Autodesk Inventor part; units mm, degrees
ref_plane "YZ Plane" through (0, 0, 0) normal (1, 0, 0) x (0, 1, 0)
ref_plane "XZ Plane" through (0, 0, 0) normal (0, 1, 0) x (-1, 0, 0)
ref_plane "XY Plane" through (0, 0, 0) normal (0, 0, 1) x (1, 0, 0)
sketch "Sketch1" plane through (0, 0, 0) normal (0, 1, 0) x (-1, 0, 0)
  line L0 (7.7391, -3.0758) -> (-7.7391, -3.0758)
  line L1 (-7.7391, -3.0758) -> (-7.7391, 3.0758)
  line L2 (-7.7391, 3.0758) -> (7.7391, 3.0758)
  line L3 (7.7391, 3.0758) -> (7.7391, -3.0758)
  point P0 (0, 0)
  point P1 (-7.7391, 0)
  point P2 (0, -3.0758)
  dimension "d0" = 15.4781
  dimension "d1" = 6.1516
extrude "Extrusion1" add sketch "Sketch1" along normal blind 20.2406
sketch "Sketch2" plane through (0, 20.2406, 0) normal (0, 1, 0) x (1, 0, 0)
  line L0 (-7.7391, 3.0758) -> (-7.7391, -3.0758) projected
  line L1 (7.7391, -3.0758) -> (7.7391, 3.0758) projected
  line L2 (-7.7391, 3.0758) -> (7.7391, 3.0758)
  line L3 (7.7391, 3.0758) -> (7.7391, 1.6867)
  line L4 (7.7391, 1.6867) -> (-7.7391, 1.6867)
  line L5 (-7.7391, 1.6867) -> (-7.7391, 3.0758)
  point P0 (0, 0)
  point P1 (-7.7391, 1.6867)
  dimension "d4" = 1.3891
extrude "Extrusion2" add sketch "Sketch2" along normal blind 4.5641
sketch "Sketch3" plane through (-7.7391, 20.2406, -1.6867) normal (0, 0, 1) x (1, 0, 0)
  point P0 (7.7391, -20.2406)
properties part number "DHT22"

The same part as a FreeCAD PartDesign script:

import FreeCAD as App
import Part
import Sketcher

V = App.Vector
Q = App.Units.Quantity


def add_polygon(sketch, points):
    """Adds a closed chain of lines whose ends are joined by coincident constraints."""
    first, n = sketch.GeometryCount, len(points)
    for a, b in zip(points, points[1:] + points[:1]):
        sketch.addGeometry(Part.LineSegment(App.Vector(*a, 0), App.Vector(*b, 0)), False)
    for i in range(n):
        sketch.addConstraint(Sketcher.Constraint("Coincident", first + i, 2, first + (i + 1) % n, 1))

doc = App.newDocument("Part")
body = doc.addObject("PartDesign::Body", "Body")

# Sketch on XZ plane
sketch1 = body.newObject("Sketcher::SketchObject", "Sketch")
sketch1.AttachmentSupport = (doc.getObject("XZ_Plane"), [""])
sketch1.MapMode = "FlatFace"
add_polygon(sketch1, [(8, -3), (-8, -3), (-8, 3), (8, 3)])  # lines 0-3
sketch1.addConstraint([
    Sketcher.Constraint("Horizontal", 0),
    Sketcher.Constraint("Vertical", 1),
    Sketcher.Constraint("Horizontal", 2),
    Sketcher.Constraint("Vertical", 3),
    Sketcher.Constraint("Symmetric", 0, 2, 2, 2, -1, 1),
    Sketcher.Constraint("DistanceX", 0, 2, 0, 1, Q("0.609378 in")),
    Sketcher.Constraint("DistanceY", 1, 1, 1, 2, Q("0.2422 in")),
])
pad1 = body.newObject("PartDesign::Pad", "Pad")
pad1.Profile = sketch1
pad1.Length = Q("0.796874 in")
pad1.Reversed = True

# Sketch on XZ plane
sketch2 = body.newObject("Sketcher::SketchObject", "Sketch001")
sketch2.AttachmentSupport = (doc.getObject("XZ_Plane"), [""])
sketch2.MapMode = "FlatFace"
sketch2.AttachmentOffset = App.Placement(V(0, 0, -0.796874 * 25.4), App.Rotation())
add_polygon(sketch2, [(7.7, -3.1), (-7.7, -3.1), (-7.7, -1.7), (7.7, -1.7)])  # lines 0-3
sketch2.addConstraint([
    Sketcher.Constraint("Horizontal", 0),
    Sketcher.Constraint("Vertical", 1),
    Sketcher.Constraint("Horizontal", 2),
    Sketcher.Constraint("Vertical", 3),
    Sketcher.Constraint("DistanceY", 1, 1, 1, 2, Q("0.0547 in")),
    Sketcher.Constraint("DistanceX", 0, 2, 0, 1, Q("0.609378 in")),
    Sketcher.Constraint("DistanceX", 0, 2, -1, 1, Q("0.3047 in")),
    Sketcher.Constraint("DistanceY", 0, 2, -1, 1, Q("0.1211 in")),
])
pad2 = body.newObject("PartDesign::Pad", "Pad001")
pad2.Profile = sketch2
pad2.Length = Q("0.179689 in")
pad2.Reversed = True

doc.recompute()
